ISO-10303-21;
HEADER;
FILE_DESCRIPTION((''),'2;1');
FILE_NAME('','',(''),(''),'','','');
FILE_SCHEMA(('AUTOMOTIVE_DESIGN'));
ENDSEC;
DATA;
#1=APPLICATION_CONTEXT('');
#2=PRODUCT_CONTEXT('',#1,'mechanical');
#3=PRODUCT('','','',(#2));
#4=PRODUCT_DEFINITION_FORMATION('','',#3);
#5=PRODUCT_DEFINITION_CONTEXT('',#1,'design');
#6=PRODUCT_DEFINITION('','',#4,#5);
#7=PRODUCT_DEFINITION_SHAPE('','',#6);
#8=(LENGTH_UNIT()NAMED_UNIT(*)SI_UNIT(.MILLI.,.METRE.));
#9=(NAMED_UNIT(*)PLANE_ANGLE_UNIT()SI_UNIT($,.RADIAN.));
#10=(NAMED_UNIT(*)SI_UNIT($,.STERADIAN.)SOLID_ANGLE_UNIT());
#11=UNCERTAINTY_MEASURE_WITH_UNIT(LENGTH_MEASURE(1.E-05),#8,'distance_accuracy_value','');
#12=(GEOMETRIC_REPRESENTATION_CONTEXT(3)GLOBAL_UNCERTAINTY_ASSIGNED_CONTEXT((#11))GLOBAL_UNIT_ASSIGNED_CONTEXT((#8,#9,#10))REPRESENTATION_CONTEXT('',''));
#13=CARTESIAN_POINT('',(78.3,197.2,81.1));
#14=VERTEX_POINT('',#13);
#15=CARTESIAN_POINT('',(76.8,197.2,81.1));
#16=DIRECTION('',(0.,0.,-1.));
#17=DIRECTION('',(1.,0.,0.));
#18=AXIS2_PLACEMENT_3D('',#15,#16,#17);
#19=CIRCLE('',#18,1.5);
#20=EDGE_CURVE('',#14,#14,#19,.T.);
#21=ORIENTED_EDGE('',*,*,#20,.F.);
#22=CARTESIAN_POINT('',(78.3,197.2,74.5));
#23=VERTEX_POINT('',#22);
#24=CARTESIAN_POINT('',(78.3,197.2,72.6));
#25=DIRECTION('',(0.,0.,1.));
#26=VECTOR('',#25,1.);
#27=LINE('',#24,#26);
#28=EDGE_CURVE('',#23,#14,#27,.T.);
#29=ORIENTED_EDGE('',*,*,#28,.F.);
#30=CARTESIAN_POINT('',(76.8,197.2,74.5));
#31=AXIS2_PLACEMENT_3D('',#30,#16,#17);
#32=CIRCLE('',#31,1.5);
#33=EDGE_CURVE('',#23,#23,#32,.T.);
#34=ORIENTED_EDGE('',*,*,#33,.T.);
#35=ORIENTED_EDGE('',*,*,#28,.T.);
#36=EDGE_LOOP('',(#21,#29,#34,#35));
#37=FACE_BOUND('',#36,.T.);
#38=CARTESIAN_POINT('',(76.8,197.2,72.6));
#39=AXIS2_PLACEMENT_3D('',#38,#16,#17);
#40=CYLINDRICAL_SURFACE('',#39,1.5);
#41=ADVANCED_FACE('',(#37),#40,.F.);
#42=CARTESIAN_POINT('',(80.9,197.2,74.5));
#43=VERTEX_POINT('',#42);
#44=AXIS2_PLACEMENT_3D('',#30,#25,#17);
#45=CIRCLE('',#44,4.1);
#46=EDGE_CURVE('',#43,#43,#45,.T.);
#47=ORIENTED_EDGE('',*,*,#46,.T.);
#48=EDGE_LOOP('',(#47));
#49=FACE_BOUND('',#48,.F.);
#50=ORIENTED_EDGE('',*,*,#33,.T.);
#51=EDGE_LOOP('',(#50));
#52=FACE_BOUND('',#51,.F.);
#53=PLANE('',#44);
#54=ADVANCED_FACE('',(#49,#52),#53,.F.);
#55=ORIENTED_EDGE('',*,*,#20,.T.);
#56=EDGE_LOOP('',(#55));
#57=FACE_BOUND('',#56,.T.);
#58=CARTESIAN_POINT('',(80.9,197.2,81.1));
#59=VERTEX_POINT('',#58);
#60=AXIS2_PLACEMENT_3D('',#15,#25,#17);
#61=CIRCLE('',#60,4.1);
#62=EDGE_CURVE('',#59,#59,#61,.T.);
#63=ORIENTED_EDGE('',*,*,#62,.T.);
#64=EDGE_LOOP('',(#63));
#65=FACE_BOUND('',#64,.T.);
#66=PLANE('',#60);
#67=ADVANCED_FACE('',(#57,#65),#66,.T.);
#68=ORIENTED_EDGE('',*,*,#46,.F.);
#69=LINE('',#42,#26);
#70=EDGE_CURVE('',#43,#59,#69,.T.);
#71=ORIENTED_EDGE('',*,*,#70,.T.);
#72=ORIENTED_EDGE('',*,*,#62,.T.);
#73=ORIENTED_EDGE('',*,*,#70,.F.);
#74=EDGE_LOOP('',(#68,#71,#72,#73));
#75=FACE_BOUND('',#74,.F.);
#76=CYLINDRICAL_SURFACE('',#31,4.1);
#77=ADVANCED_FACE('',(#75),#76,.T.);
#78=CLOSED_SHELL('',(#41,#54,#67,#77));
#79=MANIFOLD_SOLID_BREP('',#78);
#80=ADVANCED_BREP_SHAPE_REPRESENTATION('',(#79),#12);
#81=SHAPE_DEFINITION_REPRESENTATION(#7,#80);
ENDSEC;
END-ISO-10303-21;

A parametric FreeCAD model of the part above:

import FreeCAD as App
import Part
import Sketcher

V = App.Vector
Q = App.Units.Quantity

doc = App.newDocument("Part")
body = doc.addObject("PartDesign::Body", "Body")

sketch1 = body.newObject("Sketcher::SketchObject", "Sketch")
sketch1.AttachmentSupport = (doc.getObject("XY_Plane"), [""])
sketch1.MapMode = "FlatFace"
sketch1.AttachmentOffset = App.Placement(V(0, 0, -1.9), App.Rotation())
sketch1.addGeometry(Part.Circle(V(0, 0, 0), V(0, 0, 1), 1.5), False)
sketch1.addConstraint([
    Sketcher.Constraint("Coincident", 0, 3, -1, 1),
    Sketcher.Constraint("Diameter", 0, Q("3 mm")),
])
pad1 = body.newObject("PartDesign::Pad", "Pad")
pad1.Profile = sketch1
pad1.Length = 10
body2 = doc.addObject("PartDesign::Body", "Body001")

sketch2 = body2.newObject("Sketcher::SketchObject", "Sketch001")
sketch2.AttachmentSupport = (doc.getObject("XY_Plane001"), [""])
sketch2.MapMode = "FlatFace"
sketch2.addGeometry(Part.Circle(V(0, 0, 0), V(0, 0, 1), 4.1), False)
sketch2.addConstraint([
    Sketcher.Constraint("Coincident", 0, 3, -1, 1),
    Sketcher.Constraint("Diameter", 0, Q("8.2 mm")),
])
pad2 = body2.newObject("PartDesign::Pad", "Pad001")
pad2.Profile = sketch2
pad2.Length = 6.6
doc.recompute()

boolean = body2.newObject("PartDesign::Boolean", "Boolean")
boolean.Type = "Cut"
boolean.addObjects([body])
body3 = doc.addObject("PartDesign::Body", "Body002")
doc.recompute()

body2.Placement = App.Placement(V(76.8, 197.2, 74.5), App.Rotation(V(0, 0, 1), 0))
boolean2 = body3.newObject("PartDesign::Boolean", "Boolean001")
boolean2.Type = "Fuse"
boolean2.addObjects([body2])

doc.recompute()
